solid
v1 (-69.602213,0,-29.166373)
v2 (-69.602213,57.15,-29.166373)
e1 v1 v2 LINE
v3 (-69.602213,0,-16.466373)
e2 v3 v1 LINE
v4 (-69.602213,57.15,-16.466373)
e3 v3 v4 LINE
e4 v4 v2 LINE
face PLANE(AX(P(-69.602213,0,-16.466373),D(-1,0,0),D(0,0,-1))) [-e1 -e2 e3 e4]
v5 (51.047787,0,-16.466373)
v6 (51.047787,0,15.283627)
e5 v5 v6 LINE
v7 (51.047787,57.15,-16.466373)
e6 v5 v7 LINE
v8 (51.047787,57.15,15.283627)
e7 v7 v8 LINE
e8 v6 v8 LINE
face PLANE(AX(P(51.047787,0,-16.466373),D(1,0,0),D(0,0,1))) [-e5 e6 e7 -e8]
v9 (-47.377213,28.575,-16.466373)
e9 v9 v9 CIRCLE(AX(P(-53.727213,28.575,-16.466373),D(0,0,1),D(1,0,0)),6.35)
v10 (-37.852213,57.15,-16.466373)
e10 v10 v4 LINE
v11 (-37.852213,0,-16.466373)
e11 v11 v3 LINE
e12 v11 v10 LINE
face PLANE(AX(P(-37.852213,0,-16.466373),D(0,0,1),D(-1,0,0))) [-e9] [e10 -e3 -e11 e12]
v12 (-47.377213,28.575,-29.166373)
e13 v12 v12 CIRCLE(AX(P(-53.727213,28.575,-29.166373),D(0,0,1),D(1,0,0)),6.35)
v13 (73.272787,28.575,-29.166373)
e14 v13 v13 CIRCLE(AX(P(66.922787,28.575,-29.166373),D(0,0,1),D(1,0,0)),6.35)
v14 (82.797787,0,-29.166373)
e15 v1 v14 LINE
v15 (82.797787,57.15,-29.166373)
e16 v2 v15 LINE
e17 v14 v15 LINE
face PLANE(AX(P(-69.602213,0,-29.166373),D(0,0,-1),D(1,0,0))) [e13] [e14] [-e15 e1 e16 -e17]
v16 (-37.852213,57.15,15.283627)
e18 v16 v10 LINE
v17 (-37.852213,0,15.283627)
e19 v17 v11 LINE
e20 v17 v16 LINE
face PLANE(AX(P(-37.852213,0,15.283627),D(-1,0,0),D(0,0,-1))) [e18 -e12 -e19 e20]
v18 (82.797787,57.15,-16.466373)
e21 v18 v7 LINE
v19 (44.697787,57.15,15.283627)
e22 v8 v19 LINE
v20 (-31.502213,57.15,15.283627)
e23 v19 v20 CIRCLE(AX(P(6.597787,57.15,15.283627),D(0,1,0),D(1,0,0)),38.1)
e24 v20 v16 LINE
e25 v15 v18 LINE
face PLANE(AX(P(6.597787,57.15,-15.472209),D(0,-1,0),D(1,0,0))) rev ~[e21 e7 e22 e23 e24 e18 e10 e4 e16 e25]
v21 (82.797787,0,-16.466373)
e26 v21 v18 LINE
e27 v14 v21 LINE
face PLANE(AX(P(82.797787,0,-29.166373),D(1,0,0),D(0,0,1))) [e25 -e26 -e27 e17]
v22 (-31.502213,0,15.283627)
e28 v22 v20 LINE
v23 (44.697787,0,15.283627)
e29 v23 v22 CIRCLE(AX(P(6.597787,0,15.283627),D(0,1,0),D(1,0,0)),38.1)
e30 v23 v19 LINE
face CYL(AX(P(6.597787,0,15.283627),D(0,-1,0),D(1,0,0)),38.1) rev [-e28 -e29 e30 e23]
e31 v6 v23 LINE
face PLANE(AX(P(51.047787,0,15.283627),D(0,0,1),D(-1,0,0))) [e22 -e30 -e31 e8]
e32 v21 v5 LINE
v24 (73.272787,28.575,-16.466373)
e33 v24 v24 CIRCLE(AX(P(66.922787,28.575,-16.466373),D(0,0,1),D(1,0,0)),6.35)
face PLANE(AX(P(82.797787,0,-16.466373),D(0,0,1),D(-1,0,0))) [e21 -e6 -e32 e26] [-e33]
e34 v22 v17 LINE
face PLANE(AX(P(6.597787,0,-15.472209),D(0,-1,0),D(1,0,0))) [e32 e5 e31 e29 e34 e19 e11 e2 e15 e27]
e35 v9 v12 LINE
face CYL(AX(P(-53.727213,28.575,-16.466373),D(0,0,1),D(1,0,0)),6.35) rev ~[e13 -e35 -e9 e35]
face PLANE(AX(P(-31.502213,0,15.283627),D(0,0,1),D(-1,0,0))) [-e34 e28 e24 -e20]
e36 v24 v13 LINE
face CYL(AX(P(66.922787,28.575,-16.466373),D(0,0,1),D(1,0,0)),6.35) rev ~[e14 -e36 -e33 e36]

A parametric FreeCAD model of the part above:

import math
import FreeCAD as App
import Part
import Sketcher
from FreeCAD import Vector
Q = App.Units.Quantity

doc = App.newDocument("Part")
body = doc.addObject("PartDesign::Body", "Body")

# Sketch on XZ plane
sketch1 = body.newObject("Sketcher::SketchObject", "Sketch")
sketch1.AttachmentSupport = (doc.getObject("XZ_Plane"), [""])
sketch1.MapMode = "FlatFace"
sketch1.addGeometry([
    Part.LineSegment(Vector(-38, -16, 0), Vector(-70, -16, 0)),  # 0
    Part.LineSegment(Vector(-70, -16, 0), Vector(-70, -29, 0)),  # 1
    Part.LineSegment(Vector(-70, -29, 0), Vector(83, -29, 0)),  # 2
    Part.LineSegment(Vector(83, -29, 0), Vector(83, -16, 0)),  # 3
    Part.LineSegment(Vector(83, -16, 0), Vector(51, -16, 0)),  # 4
    Part.LineSegment(Vector(51, -16, 0), Vector(51, 15, 0)),  # 5
    Part.LineSegment(Vector(51, 15, 0), Vector(45, 15, 0)),  # 6
    Part.ArcOfCircle(Part.Circle(Vector(7, 15, 0), Vector(0, 0, 1), 38), math.radians(180), math.radians(360)),  # 7
    Part.LineSegment(Vector(-32, 15, 0), Vector(-38, 15, 0)),  # 8
    Part.LineSegment(Vector(-38, 15, 0), Vector(-38, -16, 0)),  # 9
], False)
sketch1.addConstraint([
    Sketcher.Constraint("Coincident", 0, 2, 1, 1),
    Sketcher.Constraint("Coincident", 1, 2, 2, 1),
    Sketcher.Constraint("Coincident", 2, 2, 3, 1),
    Sketcher.Constraint("Coincident", 3, 2, 4, 1),
    Sketcher.Constraint("Coincident", 4, 2, 5, 1),
    Sketcher.Constraint("Coincident", 5, 2, 6, 1),
    Sketcher.Constraint("Coincident", 6, 2, 7, 2),
    Sketcher.Constraint("Coincident", 7, 1, 8, 1),
    Sketcher.Constraint("Coincident", 8, 2, 9, 1),
    Sketcher.Constraint("Coincident", 9, 2, 0, 1),
    Sketcher.Constraint("Horizontal", 0),
    Sketcher.Constraint("Vertical", 1),
    Sketcher.Constraint("Horizontal", 2),
    Sketcher.Constraint("Vertical", 3),
    Sketcher.Constraint("Horizontal", 4),
    Sketcher.Constraint("Vertical", 5),
    Sketcher.Constraint("Horizontal", 6),
    Sketcher.Constraint("Horizontal", 8),
    Sketcher.Constraint("Vertical", 9),
    Sketcher.Constraint("Horizontal", 0, 2, 3, 2),
    Sketcher.Constraint("Horizontal", 7, 3, 5, 2),
    Sketcher.Constraint("Horizontal", 6, 2, 7, 1),
    Sketcher.Constraint("Equal", 0, 4),
    Sketcher.Constraint("Equal", 6, 8),
    Sketcher.Constraint("Equal", 4, 5),
    Sketcher.Constraint("Radius", 7, Q("1.5 in")),
    Sketcher.Constraint("DistanceX", 2, 1, 2, 2, Q("6 in")),
    Sketcher.Constraint("DistanceY", 1, 2, 1, 1, Q("0.5 in")),
    Sketcher.Constraint("DistanceX", 0, 2, 0, 1, Q("1.25 in")),
    Sketcher.Constraint("DistanceX", -1, 1, 7, 3, Q("6.597787 mm")),
    Sketcher.Constraint("DistanceY", -1, 1, 7, 3, Q("15.283627 mm")),
])
pad1 = body.newObject("PartDesign::Pad", "Pad")
pad1.Profile = sketch1
pad1.Length = Q("2.25 in")
pad1.Reversed = True

# Sketch on XY plane
sketch2 = body.newObject("Sketcher::SketchObject", "Sketch001")
sketch2.AttachmentSupport = (doc.getObject("XY_Plane"), [""])
sketch2.MapMode = "FlatFace"
sketch2.AttachmentOffset = App.Placement(Vector(0, 0, -16.466373), App.Rotation())
sketch2.addGeometry([
    Part.Circle(Vector(-54, 29, 0), Vector(0, 0, 1), 6),
    Part.Circle(Vector(67, 29, 0), Vector(0, 0, 1), 6),
], False)
sketch2.addConstraint([
    Sketcher.Constraint("Equal", 0, 1),
    Sketcher.Constraint("Horizontal", 0, 3, 1, 3),
    Sketcher.Constraint("Diameter", 0, Q("0.5 in")),
    Sketcher.Constraint("DistanceX", 0, 3, 1, 3, Q("4.75 in")),
    Sketcher.Constraint("DistanceY", -1, 1, 0, 3, Q("1.125 in")),
    Sketcher.Constraint("DistanceX", 0, 3, -1, 1, Q("53.727213 mm")),
])
pocket1 = body.newObject("PartDesign::Pocket", "Pocket")
pocket1.Profile = sketch2
pocket1.Length = Q("2.12 in")

doc.recompute()
